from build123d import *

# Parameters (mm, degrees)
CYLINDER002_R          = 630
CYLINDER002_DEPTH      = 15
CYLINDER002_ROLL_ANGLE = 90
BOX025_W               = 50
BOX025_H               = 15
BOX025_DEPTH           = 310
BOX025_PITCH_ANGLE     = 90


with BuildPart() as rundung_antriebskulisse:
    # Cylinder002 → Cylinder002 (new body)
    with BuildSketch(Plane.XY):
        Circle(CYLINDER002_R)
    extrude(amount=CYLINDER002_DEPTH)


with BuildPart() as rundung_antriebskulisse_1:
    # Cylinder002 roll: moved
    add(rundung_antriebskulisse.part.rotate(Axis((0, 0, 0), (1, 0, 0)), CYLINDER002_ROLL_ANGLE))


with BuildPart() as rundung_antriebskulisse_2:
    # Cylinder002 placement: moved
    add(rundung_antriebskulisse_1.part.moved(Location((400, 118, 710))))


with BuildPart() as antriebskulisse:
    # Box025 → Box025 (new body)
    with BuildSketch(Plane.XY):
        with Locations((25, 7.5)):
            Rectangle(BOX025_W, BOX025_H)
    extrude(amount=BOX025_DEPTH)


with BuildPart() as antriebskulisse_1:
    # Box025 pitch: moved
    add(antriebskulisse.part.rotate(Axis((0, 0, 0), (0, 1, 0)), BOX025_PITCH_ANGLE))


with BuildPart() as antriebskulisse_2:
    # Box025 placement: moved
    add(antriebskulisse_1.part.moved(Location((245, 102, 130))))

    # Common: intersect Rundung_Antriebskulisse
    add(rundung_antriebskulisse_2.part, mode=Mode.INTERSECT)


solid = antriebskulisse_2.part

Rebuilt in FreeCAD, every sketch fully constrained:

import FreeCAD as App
import Part
import Sketcher
from FreeCAD import Vector
Q = App.Units.Quantity


def add_polygon(sketch, points):
    """Adds a closed chain of lines whose ends are joined by coincident constraints."""
    first, n = sketch.GeometryCount, len(points)
    for a, b in zip(points, points[1:] + points[:1]):
        sketch.addGeometry(Part.LineSegment(App.Vector(*a, 0), App.Vector(*b, 0)), False)
    for i in range(n):
        sketch.addConstraint(Sketcher.Constraint("Coincident", first + i, 2, first + (i + 1) % n, 1))

doc = App.newDocument("Part")
body = doc.addObject("PartDesign::Body", "Body")

sketch1 = doc.addObject("Sketcher::SketchObject", "Sketch")
body.addObject(sketch1)
sketch1.AttachmentSupport = (doc.XY_Plane, [""])
sketch1.MapMode = "FlatFace"
sketch1.addGeometry(Part.Circle(Vector(0, 0, 0), Vector(0, 0, 1), 630), False)
sketch1.addConstraint([
    Sketcher.Constraint("Coincident", 0, 3, -1, 1),
    Sketcher.Constraint("Diameter", 0, Q("1260 mm")),
])
pad1 = doc.addObject("PartDesign::Pad", "Pad")
body.addObject(pad1)
pad1.Profile = sketch1
pad1.Length = 15
body2 = doc.addObject("PartDesign::Body", "Body001")
doc.recompute()

body.Placement = App.Placement(Vector(0, 0, 0), App.Rotation(Vector(1, 0, 0), 90))
boolean = doc.addObject("PartDesign::Boolean", "Boolean")
body2.addObject(boolean)
boolean.Type = "Fuse"
boolean.addObjects([body])
body3 = doc.addObject("PartDesign::Body", "Body002")
doc.recompute()

body2.Placement = App.Placement(Vector(400, 118, 710), App.Rotation(Vector(0, 0, 1), 0))
boolean2 = doc.addObject("PartDesign::Boolean", "Boolean001")
body3.addObject(boolean2)
boolean2.Type = "Fuse"
boolean2.addObjects([body2])
body4 = doc.addObject("PartDesign::Body", "Body003")

sketch2 = doc.addObject("Sketcher::SketchObject", "Sketch001")
body4.addObject(sketch2)
sketch2.AttachmentSupport = (doc.getObject("XY_Plane003"), [""])
sketch2.MapMode = "FlatFace"
add_polygon(sketch2, [(0, 15), (0, 0), (50, 0), (50, 15)])
sketch2.addConstraint([
    Sketcher.Constraint("Vertical", 0),
    Sketcher.Constraint("Horizontal", 1),
    Sketcher.Constraint("Vertical", 2),
    Sketcher.Constraint("Horizontal", 3),
    Sketcher.Constraint("Coincident", 0, 2, -1, 1),
    Sketcher.Constraint("DistanceX", 1, 1, 1, 2, Q("50 mm")),
    Sketcher.Constraint("DistanceY", 0, 2, 0, 1, Q("15 mm")),
])
pad2 = doc.addObject("PartDesign::Pad", "Pad001")
body4.addObject(pad2)
pad2.Profile = sketch2
pad2.Length = 310
body5 = doc.addObject("PartDesign::Body", "Body004")
doc.recompute()

body4.Placement = App.Placement(Vector(0, 0, 0), App.Rotation(Vector(0, 1, 0), 90))
boolean3 = doc.addObject("PartDesign::Boolean", "Boolean002")
body5.addObject(boolean3)
boolean3.Type = "Fuse"
boolean3.addObjects([body4])
body6 = doc.addObject("PartDesign::Body", "Body005")
doc.recompute()

body5.Placement = App.Placement(Vector(245, 102, 130), App.Rotation(Vector(0, 0, 1), 0))
boolean4 = doc.addObject("PartDesign::Boolean", "Boolean003")
body6.addObject(boolean4)
boolean4.Type = "Fuse"
boolean4.addObjects([body5])
doc.recompute()

boolean5 = doc.addObject("PartDesign::Boolean", "Boolean004")
body6.addObject(boolean5)
boolean5.Type = "Common"
boolean5.addObjects([body3])

doc.recompute()
